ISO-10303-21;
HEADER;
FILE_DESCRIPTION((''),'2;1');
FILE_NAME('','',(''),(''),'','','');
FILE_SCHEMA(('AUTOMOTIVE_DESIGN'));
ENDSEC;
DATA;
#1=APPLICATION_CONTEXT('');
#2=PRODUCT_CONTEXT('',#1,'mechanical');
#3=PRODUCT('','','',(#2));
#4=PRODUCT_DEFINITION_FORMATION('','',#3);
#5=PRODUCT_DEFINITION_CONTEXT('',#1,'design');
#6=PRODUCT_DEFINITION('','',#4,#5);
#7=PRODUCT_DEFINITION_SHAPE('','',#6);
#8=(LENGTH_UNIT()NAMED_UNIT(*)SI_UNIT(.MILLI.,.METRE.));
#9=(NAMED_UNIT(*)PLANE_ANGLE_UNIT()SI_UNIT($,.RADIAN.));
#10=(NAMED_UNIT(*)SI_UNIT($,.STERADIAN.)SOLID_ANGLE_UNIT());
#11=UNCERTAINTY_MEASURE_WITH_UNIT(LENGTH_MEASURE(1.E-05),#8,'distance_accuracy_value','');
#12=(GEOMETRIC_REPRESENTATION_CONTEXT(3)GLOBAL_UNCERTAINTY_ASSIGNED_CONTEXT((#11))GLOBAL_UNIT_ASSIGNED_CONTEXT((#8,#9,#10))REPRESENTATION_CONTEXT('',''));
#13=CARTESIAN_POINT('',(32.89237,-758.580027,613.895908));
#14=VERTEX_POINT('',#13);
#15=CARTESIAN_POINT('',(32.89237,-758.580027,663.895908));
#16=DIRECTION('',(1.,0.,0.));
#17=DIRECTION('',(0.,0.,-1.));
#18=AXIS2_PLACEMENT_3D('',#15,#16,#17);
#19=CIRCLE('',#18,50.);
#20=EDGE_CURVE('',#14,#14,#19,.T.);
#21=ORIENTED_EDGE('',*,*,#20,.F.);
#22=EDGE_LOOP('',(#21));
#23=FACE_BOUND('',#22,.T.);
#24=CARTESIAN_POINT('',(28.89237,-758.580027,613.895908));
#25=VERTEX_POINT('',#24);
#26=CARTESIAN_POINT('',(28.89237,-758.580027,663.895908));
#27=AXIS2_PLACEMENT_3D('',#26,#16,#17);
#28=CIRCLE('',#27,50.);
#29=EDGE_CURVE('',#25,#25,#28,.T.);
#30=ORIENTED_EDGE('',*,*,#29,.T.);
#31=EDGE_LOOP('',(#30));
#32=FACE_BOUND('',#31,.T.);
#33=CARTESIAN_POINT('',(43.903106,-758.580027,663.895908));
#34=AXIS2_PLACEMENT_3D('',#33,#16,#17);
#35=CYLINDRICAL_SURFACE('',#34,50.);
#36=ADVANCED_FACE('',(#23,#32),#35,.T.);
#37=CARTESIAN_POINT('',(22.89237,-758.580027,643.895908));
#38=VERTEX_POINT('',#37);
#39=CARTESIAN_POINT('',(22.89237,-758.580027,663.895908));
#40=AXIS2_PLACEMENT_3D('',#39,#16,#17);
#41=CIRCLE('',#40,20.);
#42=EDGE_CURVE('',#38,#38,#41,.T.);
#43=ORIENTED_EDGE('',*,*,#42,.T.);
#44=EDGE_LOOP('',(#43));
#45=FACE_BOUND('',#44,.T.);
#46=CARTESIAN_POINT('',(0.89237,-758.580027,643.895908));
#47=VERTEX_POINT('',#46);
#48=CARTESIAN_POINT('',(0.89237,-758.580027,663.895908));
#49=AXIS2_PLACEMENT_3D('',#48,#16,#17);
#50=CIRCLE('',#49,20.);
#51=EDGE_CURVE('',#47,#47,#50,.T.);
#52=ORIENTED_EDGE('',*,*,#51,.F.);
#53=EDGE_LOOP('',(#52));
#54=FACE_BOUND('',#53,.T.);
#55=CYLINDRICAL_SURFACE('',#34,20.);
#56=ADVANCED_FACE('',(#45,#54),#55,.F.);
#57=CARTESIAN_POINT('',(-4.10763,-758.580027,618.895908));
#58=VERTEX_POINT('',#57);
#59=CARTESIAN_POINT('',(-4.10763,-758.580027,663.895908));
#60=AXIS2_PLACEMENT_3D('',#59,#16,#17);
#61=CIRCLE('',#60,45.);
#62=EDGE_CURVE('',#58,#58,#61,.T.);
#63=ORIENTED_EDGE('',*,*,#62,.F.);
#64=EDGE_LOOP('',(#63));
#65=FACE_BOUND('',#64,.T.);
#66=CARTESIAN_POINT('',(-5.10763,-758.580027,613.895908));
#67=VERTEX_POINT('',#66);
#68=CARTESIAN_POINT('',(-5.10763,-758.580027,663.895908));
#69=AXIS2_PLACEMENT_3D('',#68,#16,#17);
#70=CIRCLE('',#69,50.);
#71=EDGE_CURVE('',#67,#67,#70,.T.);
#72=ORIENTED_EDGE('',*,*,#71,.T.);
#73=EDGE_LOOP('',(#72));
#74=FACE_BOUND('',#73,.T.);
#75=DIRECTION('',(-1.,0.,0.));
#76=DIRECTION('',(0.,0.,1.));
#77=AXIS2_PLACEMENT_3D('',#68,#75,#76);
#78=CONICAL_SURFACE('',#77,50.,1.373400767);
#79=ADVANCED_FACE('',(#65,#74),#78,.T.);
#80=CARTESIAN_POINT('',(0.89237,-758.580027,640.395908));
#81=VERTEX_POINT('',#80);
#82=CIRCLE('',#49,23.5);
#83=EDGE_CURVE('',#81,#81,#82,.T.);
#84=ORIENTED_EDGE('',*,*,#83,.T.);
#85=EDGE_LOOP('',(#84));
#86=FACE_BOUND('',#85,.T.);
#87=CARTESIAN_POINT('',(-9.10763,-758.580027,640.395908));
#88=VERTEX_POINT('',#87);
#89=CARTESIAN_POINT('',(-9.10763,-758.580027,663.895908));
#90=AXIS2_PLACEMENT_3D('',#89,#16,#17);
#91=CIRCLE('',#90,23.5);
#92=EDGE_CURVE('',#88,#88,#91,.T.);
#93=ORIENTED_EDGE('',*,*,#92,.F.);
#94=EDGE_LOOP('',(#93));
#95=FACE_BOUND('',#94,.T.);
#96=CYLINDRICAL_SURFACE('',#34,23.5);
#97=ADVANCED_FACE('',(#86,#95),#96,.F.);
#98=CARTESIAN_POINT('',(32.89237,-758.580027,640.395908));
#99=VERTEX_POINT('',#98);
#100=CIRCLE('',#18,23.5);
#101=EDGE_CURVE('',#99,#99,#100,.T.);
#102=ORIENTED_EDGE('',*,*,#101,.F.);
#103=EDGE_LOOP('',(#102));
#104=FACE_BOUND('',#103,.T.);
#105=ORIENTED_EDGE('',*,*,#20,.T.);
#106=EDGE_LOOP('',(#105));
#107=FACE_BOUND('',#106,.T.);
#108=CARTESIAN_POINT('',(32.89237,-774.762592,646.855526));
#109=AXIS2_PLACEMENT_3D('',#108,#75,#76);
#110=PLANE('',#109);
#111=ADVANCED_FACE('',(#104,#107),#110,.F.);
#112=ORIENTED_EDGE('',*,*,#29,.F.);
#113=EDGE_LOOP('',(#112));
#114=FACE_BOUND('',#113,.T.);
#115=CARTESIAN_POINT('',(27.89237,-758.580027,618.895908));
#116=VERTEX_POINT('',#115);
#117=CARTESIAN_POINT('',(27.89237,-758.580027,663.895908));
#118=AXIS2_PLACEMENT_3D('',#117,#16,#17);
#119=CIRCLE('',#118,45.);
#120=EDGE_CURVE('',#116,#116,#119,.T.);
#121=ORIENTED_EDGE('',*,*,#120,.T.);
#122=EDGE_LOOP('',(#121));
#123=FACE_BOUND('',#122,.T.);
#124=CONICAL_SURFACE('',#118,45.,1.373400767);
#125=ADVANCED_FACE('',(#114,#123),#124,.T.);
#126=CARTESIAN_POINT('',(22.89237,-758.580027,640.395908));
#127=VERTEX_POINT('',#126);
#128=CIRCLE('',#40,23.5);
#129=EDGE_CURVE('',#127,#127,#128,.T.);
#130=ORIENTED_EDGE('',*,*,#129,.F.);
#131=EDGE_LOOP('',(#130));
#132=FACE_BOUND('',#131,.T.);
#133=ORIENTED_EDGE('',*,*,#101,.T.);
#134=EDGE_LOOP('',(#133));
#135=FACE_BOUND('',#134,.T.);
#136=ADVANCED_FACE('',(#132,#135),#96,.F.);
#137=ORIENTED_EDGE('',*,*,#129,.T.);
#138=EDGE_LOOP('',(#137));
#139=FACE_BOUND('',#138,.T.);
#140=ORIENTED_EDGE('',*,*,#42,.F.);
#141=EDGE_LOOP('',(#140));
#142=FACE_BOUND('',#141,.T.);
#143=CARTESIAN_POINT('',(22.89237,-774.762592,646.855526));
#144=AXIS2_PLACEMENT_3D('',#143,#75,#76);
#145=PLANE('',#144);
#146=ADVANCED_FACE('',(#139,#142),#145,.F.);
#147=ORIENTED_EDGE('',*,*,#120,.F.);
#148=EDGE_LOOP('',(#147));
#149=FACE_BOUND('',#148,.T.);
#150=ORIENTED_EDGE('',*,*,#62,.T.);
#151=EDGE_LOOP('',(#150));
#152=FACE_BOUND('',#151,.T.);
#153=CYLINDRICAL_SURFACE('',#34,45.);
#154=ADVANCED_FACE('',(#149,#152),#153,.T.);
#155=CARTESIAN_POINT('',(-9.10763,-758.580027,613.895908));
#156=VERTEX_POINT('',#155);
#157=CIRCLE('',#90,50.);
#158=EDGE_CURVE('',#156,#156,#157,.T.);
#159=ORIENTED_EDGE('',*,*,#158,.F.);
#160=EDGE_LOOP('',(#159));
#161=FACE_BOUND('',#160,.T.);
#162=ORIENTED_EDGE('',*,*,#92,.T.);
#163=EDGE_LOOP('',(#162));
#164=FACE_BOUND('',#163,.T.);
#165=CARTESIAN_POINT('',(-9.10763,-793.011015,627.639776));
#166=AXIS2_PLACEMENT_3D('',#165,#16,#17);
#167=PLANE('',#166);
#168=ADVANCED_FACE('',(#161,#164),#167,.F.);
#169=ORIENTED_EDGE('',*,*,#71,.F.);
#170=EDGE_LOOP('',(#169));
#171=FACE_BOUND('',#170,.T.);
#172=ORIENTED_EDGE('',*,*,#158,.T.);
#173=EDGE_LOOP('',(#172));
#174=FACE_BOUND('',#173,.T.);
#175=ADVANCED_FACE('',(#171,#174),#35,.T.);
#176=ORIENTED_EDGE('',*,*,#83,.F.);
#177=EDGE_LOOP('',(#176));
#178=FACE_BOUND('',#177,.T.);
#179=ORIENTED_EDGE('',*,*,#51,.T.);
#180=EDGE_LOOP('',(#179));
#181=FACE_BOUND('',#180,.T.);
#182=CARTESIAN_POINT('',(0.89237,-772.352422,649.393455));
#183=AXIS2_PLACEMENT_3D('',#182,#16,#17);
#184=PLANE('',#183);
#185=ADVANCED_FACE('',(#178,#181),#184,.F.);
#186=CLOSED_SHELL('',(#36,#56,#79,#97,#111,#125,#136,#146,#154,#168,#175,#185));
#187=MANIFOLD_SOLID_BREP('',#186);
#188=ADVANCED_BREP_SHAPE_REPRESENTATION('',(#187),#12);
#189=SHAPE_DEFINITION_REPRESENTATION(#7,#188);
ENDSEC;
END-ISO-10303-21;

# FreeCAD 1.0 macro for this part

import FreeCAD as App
import Part
import Sketcher
from FreeCAD import Vector

doc = App.newDocument("Part")
params = doc.addObject("Spreadsheet::Sheet", "Params")
for row, (alias, value) in enumerate([
    ("sketch1_width", "10 mm"),
    ("sketch1_width2", "22 mm"),
    ("sketch1_width3", "4 mm"),
    ("sketch1_width4", "32 mm"),
    ("sketch1_height", "26.5 mm"),
    ("revolution_angle", "360 deg"),
], start=1):
    params.set(f"A{row}", alias)
    params.set(f"B{row}", "=" + value)
    params.setAlias(f"B{row}", alias)

body = doc.addObject("PartDesign::Body", "Body")

# Sketch on an angled plane
sketch1 = body.newObject("Sketcher::SketchObject", "Sketch")
sketch1.Placement = App.Placement(Vector(0, -730.369167, 693.60219), App.Rotation(Vector(-1, 0, 0), Vector(0, -0.688619762, -0.725122626), Vector(0, -0.725122626, 0.688619762), "ZXY"))
sketch1.addGeometry(Part.LineSegment(Vector(-32.89237, 90.967254, 0), Vector(-32.89237, 64.467254, 0)), False)
sketch1.addGeometry(Part.LineSegment(Vector(-32.89237, 64.467254, 0), Vector(-22.89237, 64.467254, 0)), False)
sketch1.addGeometry(Part.LineSegment(Vector(-22.89237, 64.467254, 0), Vector(-22.89237, 60.967254, 0)), False)
sketch1.addGeometry(Part.LineSegment(Vector(-22.89237, 60.967254, 0), Vector(-0.89237, 60.967254, 0)), False)
sketch1.addGeometry(Part.LineSegment(Vector(-0.89237, 60.967254, 0), Vector(-0.89237, 64.467254, 0)), False)
sketch1.addGeometry(Part.LineSegment(Vector(-0.89237, 64.467254, 0), Vector(9.10763, 64.467254, 0)), False)
sketch1.addGeometry(Part.LineSegment(Vector(9.10763, 64.467254, 0), Vector(9.10763, 90.967254, 0)), False)
sketch1.addGeometry(Part.LineSegment(Vector(9.10763, 90.967254, 0), Vector(5.10763, 90.967254, 0)), False)
sketch1.addGeometry(Part.LineSegment(Vector(5.10763, 90.967254, 0), Vector(4.10763, 85.967254, 0)), False)
sketch1.addGeometry(Part.LineSegment(Vector(4.10763, 85.967254, 0), Vector(-27.89237, 85.967254, 0)), False)
sketch1.addGeometry(Part.LineSegment(Vector(-27.89237, 85.967254, 0), Vector(-28.89237, 90.967254, 0)), False)
sketch1.addGeometry(Part.LineSegment(Vector(-28.89237, 90.967254, 0), Vector(-32.89237, 90.967254, 0)), False)
sketch1.addGeometry(Part.LineSegment(Vector(-32.89237, 40.967254, 0), Vector(9.10763, 40.967254, 0)), True)  # axis
sketch1.addConstraint(Sketcher.Constraint("Coincident", 0, 2, 1, 1))
sketch1.addConstraint(Sketcher.Constraint("Coincident", 1, 2, 2, 1))
sketch1.addConstraint(Sketcher.Constraint("Coincident", 2, 2, 3, 1))
sketch1.addConstraint(Sketcher.Constraint("Coincident", 3, 2, 4, 1))
sketch1.addConstraint(Sketcher.Constraint("Coincident", 4, 2, 5, 1))
sketch1.addConstraint(Sketcher.Constraint("Coincident", 5, 2, 6, 1))
sketch1.addConstraint(Sketcher.Constraint("Coincident", 6, 2, 7, 1))
sketch1.addConstraint(Sketcher.Constraint("Coincident", 7, 2, 8, 1))
sketch1.addConstraint(Sketcher.Constraint("Coincident", 8, 2, 9, 1))
sketch1.addConstraint(Sketcher.Constraint("Coincident", 9, 2, 10, 1))
sketch1.addConstraint(Sketcher.Constraint("Coincident", 10, 2, 11, 1))
sketch1.addConstraint(Sketcher.Constraint("Coincident", 11, 2, 0, 1))
sketch1.addConstraint(Sketcher.Constraint("Vertical", 0))
sketch1.addConstraint(Sketcher.Constraint("Horizontal", 1))
sketch1.addConstraint(Sketcher.Constraint("Vertical", 2))
sketch1.addConstraint(Sketcher.Constraint("Horizontal", 3))
sketch1.addConstraint(Sketcher.Constraint("Vertical", 4))
sketch1.addConstraint(Sketcher.Constraint("Horizontal", 5))
sketch1.addConstraint(Sketcher.Constraint("Vertical", 6))
sketch1.addConstraint(Sketcher.Constraint("Horizontal", 7))
sketch1.addConstraint(Sketcher.Constraint("Horizontal", 9))
sketch1.addConstraint(Sketcher.Constraint("Horizontal", 11))
sketch1.addConstraint(Sketcher.Constraint("Horizontal", 12))
sketch1.addConstraint(Sketcher.Constraint("Horizontal", 1, 2, 4, 2))
sketch1.addConstraint(Sketcher.Constraint("Horizontal", 7, 2, 10, 2))
sketch1.addConstraint(Sketcher.Constraint("Vertical", 11, 2, 12, 1))
sketch1.addConstraint(Sketcher.Constraint("Vertical", 6, 2, 12, 2))
sketch1.addConstraint(Sketcher.Constraint("Equal", 1, 5))
sketch1.addConstraint(Sketcher.Constraint("Equal", 7, 11))
sketch1.addConstraint(Sketcher.Constraint("Equal", 8, 10))
sketch1.addConstraint(Sketcher.Constraint("DistanceX", 1, 1, 1, 2, 10.0))
sketch1.addConstraint(Sketcher.Constraint("DistanceX", 3, 1, 3, 2, 22.0))
sketch1.addConstraint(Sketcher.Constraint("DistanceX", 7, 2, 7, 1, 4.0))
sketch1.addConstraint(Sketcher.Constraint("DistanceX", 9, 2, 9, 1, 32.0))
sketch1.addConstraint(Sketcher.Constraint("DistanceY", 0, 2, 0, 1, 26.5))
sketch1.addConstraint(Sketcher.Constraint("DistanceY", 2, 2, 2, 1, 3.5))
sketch1.addConstraint(Sketcher.Constraint("DistanceY", 8, 2, 7, 2, 5.0))
sketch1.addConstraint(Sketcher.Constraint("DistanceY", 12, 1, 2, 2, 20.0))
sketch1.addConstraint(Sketcher.Constraint("DistanceX", 0, 2, -1, 1, 32.89237))
sketch1.addConstraint(Sketcher.Constraint("DistanceY", -1, 1, 0, 2, 64.467254))
sketch1.setExpression("Constraints[30]", "Params.sketch1_width")
sketch1.setExpression("Constraints[31]", "Params.sketch1_width2")
sketch1.setExpression("Constraints[32]", "Params.sketch1_width3")
sketch1.setExpression("Constraints[33]", "Params.sketch1_width4")
sketch1.setExpression("Constraints[34]", "Params.sketch1_height")
revolution = body.newObject("PartDesign::Revolution", "Revolution")
revolution.Profile = sketch1
revolution.ReferenceAxis = (sketch1, ["Axis0"])
revolution.setExpression("Angle", "Params.revolution_angle")

doc.recompute()
